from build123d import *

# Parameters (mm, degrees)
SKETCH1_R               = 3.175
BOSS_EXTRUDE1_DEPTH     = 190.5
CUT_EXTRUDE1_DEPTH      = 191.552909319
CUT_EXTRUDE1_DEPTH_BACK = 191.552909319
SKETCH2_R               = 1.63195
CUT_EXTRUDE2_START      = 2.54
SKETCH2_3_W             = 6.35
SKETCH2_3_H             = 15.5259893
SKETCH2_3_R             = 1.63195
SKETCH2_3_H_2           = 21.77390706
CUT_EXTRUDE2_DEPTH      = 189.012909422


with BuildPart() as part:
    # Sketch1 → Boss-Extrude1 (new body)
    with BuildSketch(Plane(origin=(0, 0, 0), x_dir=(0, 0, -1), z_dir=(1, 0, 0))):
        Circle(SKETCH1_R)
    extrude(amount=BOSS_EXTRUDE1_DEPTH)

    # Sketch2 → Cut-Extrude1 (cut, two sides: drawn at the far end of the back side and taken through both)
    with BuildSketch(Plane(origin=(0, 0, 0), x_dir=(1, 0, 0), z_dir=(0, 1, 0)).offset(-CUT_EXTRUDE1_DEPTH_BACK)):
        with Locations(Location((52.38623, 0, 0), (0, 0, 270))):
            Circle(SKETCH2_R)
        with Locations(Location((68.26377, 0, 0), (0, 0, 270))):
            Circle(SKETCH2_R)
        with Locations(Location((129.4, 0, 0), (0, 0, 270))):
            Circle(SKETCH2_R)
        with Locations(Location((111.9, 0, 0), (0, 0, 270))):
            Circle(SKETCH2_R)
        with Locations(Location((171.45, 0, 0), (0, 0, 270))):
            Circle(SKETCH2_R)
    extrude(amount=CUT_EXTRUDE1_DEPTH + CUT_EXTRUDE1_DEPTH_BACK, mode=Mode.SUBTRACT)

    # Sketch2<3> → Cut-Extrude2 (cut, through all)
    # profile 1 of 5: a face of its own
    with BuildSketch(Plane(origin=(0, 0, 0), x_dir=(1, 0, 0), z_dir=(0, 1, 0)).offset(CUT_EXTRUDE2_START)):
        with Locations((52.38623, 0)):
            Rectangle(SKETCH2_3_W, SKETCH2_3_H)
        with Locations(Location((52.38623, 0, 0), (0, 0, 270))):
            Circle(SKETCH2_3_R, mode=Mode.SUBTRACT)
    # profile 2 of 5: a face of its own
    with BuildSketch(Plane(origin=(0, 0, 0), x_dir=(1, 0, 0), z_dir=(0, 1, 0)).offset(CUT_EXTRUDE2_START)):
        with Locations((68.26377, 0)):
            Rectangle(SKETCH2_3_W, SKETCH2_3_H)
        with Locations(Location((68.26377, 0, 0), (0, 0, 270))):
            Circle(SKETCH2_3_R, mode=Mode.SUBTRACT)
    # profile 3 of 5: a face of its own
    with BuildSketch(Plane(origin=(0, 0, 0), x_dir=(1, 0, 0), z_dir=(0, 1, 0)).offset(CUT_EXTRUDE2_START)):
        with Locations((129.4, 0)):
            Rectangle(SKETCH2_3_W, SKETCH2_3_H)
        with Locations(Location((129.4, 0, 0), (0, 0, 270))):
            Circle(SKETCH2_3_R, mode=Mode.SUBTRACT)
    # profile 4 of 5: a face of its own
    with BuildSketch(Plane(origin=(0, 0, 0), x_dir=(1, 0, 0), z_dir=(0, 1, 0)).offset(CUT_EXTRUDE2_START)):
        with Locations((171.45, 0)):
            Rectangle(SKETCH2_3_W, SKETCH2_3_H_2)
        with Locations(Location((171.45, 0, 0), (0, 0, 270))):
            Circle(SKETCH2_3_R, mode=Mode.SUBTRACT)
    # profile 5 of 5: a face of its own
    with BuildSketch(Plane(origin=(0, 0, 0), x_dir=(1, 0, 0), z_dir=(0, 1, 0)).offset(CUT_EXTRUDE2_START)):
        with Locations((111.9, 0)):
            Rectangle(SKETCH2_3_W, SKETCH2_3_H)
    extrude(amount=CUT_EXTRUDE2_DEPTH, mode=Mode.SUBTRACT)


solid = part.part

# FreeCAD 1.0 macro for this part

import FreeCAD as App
import Part
import Sketcher

V = App.Vector
Q = App.Units.Quantity


def add_polygon(sketch, points):
    """Adds a closed chain of lines whose ends are joined by coincident constraints."""
    first, n = sketch.GeometryCount, len(points)
    for a, b in zip(points, points[1:] + points[:1]):
        sketch.addGeometry(Part.LineSegment(App.Vector(*a, 0), App.Vector(*b, 0)), False)
    for i in range(n):
        sketch.addConstraint(Sketcher.Constraint("Coincident", first + i, 2, first + (i + 1) % n, 1))

doc = App.newDocument("Part")
body = doc.addObject("PartDesign::Body", "Body")

# Sketch on YZ plane
sketch1 = body.newObject("Sketcher::SketchObject", "Sketch")
sketch1.AttachmentSupport = (doc.getObject("YZ_Plane"), [""])
sketch1.MapMode = "FlatFace"
sketch1.addGeometry(Part.Circle(V(0, 0, 0), V(0, 0, 1), 3.2), False)
sketch1.addConstraint([
    Sketcher.Constraint("Coincident", 0, 3, -1, 1),
    Sketcher.Constraint("Diameter", 0, Q("0.25 in")),
])
pad1 = body.newObject("PartDesign::Pad", "Pad")
pad1.Profile = sketch1
pad1.Length = Q("7.5 in")

# Sketch on XZ plane
sketch2 = body.newObject("Sketcher::SketchObject", "Sketch001")
sketch2.AttachmentSupport = (doc.getObject("XZ_Plane"), [""])
sketch2.MapMode = "FlatFace"
sketch2.addGeometry([
    Part.Circle(V(52.4, 0, 0), V(0, 0, 1), 1.6),  # 0
    Part.Circle(V(68.3, 0, 0), V(0, 0, 1), 1.6),  # 1
    Part.Circle(V(129.4, 0, 0), V(0, 0, 1), 1.6),  # 2
    Part.Circle(V(111.9, 0, 0), V(0, 0, 1), 1.6),  # 3
    Part.Circle(V(171.4, 0, 0), V(0, 0, 1), 1.6),  # 4
], False)
sketch2.addConstraint([
    Sketcher.Constraint("Equal", 0, 1),
    Sketcher.Constraint("Equal", 1, 2),
    Sketcher.Constraint("Equal", 2, 3),
    Sketcher.Constraint("Equal", 3, 4),
    Sketcher.Constraint("PointOnObject", 0, 3, -1),
    Sketcher.Constraint("PointOnObject", 1, 3, -1),
    Sketcher.Constraint("PointOnObject", 2, 3, -1),
    Sketcher.Constraint("PointOnObject", 3, 3, -1),
    Sketcher.Constraint("PointOnObject", 4, 3, -1),
    Sketcher.Constraint("Diameter", 0, Q("0.1285 in")),
    Sketcher.Constraint("DistanceX", -1, 1, 4, 3, Q("6.75 in")),
    Sketcher.Constraint("DistanceX", 0, 3, 1, 3, Q("0.6251 in")),
    Sketcher.Constraint("DistanceX", -1, 1, 2, 3, 129.4),
    Sketcher.Constraint("DistanceX", -1, 1, 3, 3, 111.9),
    Sketcher.Constraint("DistanceX", -1, 1, 0, 3, 52.38623),
])
pocket1 = body.newObject("PartDesign::Pocket", "Pocket")
pocket1.Profile = sketch2
pocket1.Type = "ThroughAll"
pocket1.Midplane = True

# Sketch on XZ plane
sketch3 = body.newObject("Sketcher::SketchObject", "Sketch002")
sketch3.AttachmentSupport = (doc.getObject("XZ_Plane"), [""])
sketch3.MapMode = "FlatFace"
sketch3.AttachmentOffset = App.Placement(V(0, 0, -0.1 * 25.4), App.Rotation())
add_polygon(sketch3, [(49.2, -7.8), (49.2, 7.8), (55.6, 7.8), (55.6, -7.8)])  # lines 0-3
sketch3.addGeometry(Part.Circle(V(52.4, 0, 0), V(0, 0, 1), 1.6), False)  # 4
add_polygon(sketch3, [(65.1, -7.8), (65.1, 7.8), (71.4, 7.8), (71.4, -7.8)])  # lines 5-8
sketch3.addGeometry(Part.Circle(V(68.3, 0, 0), V(0, 0, 1), 1.6), False)  # 9
add_polygon(sketch3, [(126.2, -7.8), (126.2, 7.8), (132.6, 7.8), (132.6, -7.8)])  # lines 10-13
sketch3.addGeometry(Part.Circle(V(129.4, 0, 0), V(0, 0, 1), 1.6), False)  # 14
add_polygon(sketch3, [(168.3, -10.9), (168.3, 10.9), (174.6, 10.9), (174.6, -10.9)])  # lines 15-18
sketch3.addGeometry(Part.Circle(V(171.4, 0, 0), V(0, 0, 1), 1.6), False)  # 19
add_polygon(sketch3, [(108.7, -7.8), (108.7, 7.8), (115.1, 7.8), (115.1, -7.8)])  # lines 20-23
sketch3.addConstraint([
    Sketcher.Constraint("Vertical", 0),
    Sketcher.Constraint("Horizontal", 1),
    Sketcher.Constraint("Vertical", 2),
    Sketcher.Constraint("Horizontal", 3),
    Sketcher.Constraint("Vertical", 5),
    Sketcher.Constraint("Horizontal", 6),
    Sketcher.Constraint("Vertical", 7),
    Sketcher.Constraint("Horizontal", 8),
    Sketcher.Constraint("Vertical", 10),
    Sketcher.Constraint("Horizontal", 11),
    Sketcher.Constraint("Vertical", 12),
    Sketcher.Constraint("Horizontal", 13),
    Sketcher.Constraint("Vertical", 15),
    Sketcher.Constraint("Horizontal", 16),
    Sketcher.Constraint("Vertical", 17),
    Sketcher.Constraint("Horizontal", 18),
    Sketcher.Constraint("Vertical", 20),
    Sketcher.Constraint("Horizontal", 21),
    Sketcher.Constraint("Vertical", 22),
    Sketcher.Constraint("Horizontal", 23),
    Sketcher.Constraint("Equal", 4, 9),
    Sketcher.Constraint("Equal", 9, 14),
    Sketcher.Constraint("Equal", 14, 19),
    Sketcher.Constraint("PointOnObject", 4, 3, -1),
    Sketcher.Constraint("PointOnObject", 9, 3, -1),
    Sketcher.Constraint("PointOnObject", 14, 3, -1),
    Sketcher.Constraint("PointOnObject", 19, 3, -1),
    Sketcher.Constraint("Horizontal", 1, 2, 5, 2),
    Sketcher.Constraint("Horizontal", 3, 2, 7, 2),
    Sketcher.Constraint("Horizontal", 6, 2, 10, 2),
    Sketcher.Constraint("Horizontal", 8, 2, 12, 2),
    Sketcher.Constraint("Horizontal", 11, 2, 20, 2),
    Sketcher.Constraint("Horizontal", 13, 2, 22, 2),
    Sketcher.Constraint("Equal", 3, 6),
    Sketcher.Constraint("Equal", 8, 11),
    Sketcher.Constraint("Equal", 13, 16),
    Sketcher.Constraint("Equal", 18, 21),
    Sketcher.Constraint("Diameter", 4, Q("0.1285 in")),
    Sketcher.Constraint("DistanceX", 1, 1, 1, 2, Q("0.25 in")),
    Sketcher.Constraint("DistanceX", -1, 1, 19, 3, Q("6.75 in")),
    Sketcher.Constraint("DistanceX", -1, 1, 15, 2, Q("6.625 in")),
    Sketcher.Constraint("DistanceX", 0, 2, 4, 3, Q("0.125 in")),
    Sketcher.Constraint("DistanceX", 5, 2, 9, 3, Q("0.125 in")),
    Sketcher.Constraint("DistanceX", 10, 2, 14, 3, Q("0.125 in")),
    Sketcher.Constraint("DistanceX", 4, 3, 9, 3, Q("0.6251 in")),
    Sketcher.Constraint("DistanceY", 0, 1, 0, 2, 15.525989),
    Sketcher.Constraint("DistanceX", -1, 1, 14, 3, 129.4),
    Sketcher.Constraint("DistanceX", -1, 1, 20, 2, 108.725),
    Sketcher.Constraint("DistanceY", 15, 1, 15, 2, 21.773907),
    Sketcher.Constraint("DistanceX", -1, 1, 4, 3, 52.38623),
    Sketcher.Constraint("DistanceY", 11, 2, 15, 2, 3.123959),
    Sketcher.Constraint("DistanceY", -1, 1, 0, 2, 7.762995),
])
pocket2 = body.newObject("PartDesign::Pocket", "Pocket001")
pocket2.Profile = sketch3
pocket2.Length = 189.012909

doc.recompute()
